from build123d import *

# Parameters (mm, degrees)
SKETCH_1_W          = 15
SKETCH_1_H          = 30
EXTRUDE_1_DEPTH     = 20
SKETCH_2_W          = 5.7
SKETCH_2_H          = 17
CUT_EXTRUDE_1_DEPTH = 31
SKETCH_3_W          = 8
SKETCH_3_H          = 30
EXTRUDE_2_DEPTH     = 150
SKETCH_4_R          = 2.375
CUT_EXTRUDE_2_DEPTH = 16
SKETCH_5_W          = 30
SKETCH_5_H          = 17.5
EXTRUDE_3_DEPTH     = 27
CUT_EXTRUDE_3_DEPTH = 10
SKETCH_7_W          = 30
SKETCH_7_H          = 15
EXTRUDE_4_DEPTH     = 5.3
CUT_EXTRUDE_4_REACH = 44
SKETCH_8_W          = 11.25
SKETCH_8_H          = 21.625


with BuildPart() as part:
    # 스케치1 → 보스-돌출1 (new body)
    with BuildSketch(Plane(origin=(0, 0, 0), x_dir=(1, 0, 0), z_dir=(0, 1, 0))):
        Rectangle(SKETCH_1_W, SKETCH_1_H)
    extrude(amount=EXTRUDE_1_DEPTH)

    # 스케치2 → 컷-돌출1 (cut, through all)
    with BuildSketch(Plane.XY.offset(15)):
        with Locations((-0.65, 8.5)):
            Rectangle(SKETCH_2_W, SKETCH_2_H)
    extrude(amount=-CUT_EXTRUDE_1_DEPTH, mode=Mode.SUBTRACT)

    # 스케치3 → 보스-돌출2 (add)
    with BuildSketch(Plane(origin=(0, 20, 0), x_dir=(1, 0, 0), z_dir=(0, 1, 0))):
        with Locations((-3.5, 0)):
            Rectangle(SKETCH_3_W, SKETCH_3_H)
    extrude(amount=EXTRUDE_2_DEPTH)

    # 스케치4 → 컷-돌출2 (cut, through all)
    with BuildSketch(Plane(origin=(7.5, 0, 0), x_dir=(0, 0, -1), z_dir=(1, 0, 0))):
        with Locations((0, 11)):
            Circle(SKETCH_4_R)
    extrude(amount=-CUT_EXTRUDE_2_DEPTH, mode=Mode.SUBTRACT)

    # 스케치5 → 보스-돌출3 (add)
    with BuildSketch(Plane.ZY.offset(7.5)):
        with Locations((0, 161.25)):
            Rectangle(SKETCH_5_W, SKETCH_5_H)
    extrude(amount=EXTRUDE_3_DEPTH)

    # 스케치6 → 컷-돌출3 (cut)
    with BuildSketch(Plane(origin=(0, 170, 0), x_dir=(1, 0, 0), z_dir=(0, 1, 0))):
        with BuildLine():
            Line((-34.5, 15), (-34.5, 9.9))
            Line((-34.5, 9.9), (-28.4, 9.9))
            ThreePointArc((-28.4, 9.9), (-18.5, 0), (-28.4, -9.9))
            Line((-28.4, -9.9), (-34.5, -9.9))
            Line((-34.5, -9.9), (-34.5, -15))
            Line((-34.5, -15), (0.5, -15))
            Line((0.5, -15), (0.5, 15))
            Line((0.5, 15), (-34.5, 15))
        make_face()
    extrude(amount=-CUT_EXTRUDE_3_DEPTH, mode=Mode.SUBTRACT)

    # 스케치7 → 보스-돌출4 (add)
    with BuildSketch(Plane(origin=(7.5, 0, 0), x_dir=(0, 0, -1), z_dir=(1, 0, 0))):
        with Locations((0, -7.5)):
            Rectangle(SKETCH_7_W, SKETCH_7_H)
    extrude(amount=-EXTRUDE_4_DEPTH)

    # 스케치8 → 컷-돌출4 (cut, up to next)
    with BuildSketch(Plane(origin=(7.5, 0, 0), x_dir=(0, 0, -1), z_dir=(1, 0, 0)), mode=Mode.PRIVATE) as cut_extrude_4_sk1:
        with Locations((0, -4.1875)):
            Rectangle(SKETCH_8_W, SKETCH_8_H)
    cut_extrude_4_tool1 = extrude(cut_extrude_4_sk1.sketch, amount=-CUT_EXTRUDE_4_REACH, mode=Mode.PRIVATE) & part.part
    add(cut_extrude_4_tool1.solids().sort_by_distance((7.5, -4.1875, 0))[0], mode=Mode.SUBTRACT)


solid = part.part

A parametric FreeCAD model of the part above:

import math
import FreeCAD as App
import Part
import Sketcher
Q = App.Units.Quantity


def add_polygon(sketch, points):
    """Adds a closed chain of lines whose ends are joined by coincident constraints."""
    first, n = sketch.GeometryCount, len(points)
    for a, b in zip(points, points[1:] + points[:1]):
        sketch.addGeometry(Part.LineSegment(App.Vector(*a, 0), App.Vector(*b, 0)), False)
    for i in range(n):
        sketch.addConstraint(Sketcher.Constraint("Coincident", first + i, 2, first + (i + 1) % n, 1))

doc = App.newDocument("Part")
body = doc.addObject("PartDesign::Body", "Body")

# Sketch on XZ plane
sketch1 = body.newObject("Sketcher::SketchObject", "Sketch")
sketch1.AttachmentSupport = (doc.getObject("XZ_Plane"), [""])
sketch1.MapMode = "FlatFace"
add_polygon(sketch1, [(-7.5, -15), (-7.5, 15), (7.5, 15), (7.5, -15)])  # lines 0-3
sketch1.addConstraint([
    Sketcher.Constraint("Vertical", 0),
    Sketcher.Constraint("Horizontal", 1),
    Sketcher.Constraint("Vertical", 2),
    Sketcher.Constraint("Horizontal", 3),
    Sketcher.Constraint("Symmetric", 0, 2, 2, 2, -1, 1),
    Sketcher.Constraint("DistanceX", 1, 1, 1, 2, Q("15 mm")),
    Sketcher.Constraint("DistanceY", 0, 1, 0, 2, Q("30 mm")),
])
pad1 = body.newObject("PartDesign::Pad", "Pad")
pad1.Profile = sketch1
pad1.Length = 20
pad1.Reversed = True

# Sketch on XY plane
sketch2 = body.newObject("Sketcher::SketchObject", "Sketch001")
sketch2.AttachmentSupport = (doc.getObject("XY_Plane"), [""])
sketch2.MapMode = "FlatFace"
sketch2.AttachmentOffset = App.Placement(App.Vector(0, 0, 15), App.Rotation())
add_polygon(sketch2, [(-3.5, 17), (-3.5, 0), (2.2, 0), (2.2, 17)])  # lines 0-3
sketch2.addConstraint([
    Sketcher.Constraint("Vertical", 0),
    Sketcher.Constraint("Horizontal", 1),
    Sketcher.Constraint("Vertical", 2),
    Sketcher.Constraint("Horizontal", 3),
    Sketcher.Constraint("PointOnObject", 0, 2, -1),
    Sketcher.Constraint("DistanceY", 0, 2, 0, 1, Q("17 mm")),
    Sketcher.Constraint("DistanceX", 1, 1, 1, 2, Q("5.7 mm")),
    Sketcher.Constraint("DistanceX", 0, 2, -1, 1, Q("3.5 mm")),
])
pocket1 = body.newObject("PartDesign::Pocket", "Pocket")
pocket1.Profile = sketch2
pocket1.Type = "ThroughAll"

# Sketch on XZ plane
sketch3 = body.newObject("Sketcher::SketchObject", "Sketch002")
sketch3.AttachmentSupport = (doc.getObject("XZ_Plane"), [""])
sketch3.MapMode = "FlatFace"
sketch3.AttachmentOffset = App.Placement(App.Vector(0, 0, -20), App.Rotation())
add_polygon(sketch3, [(-7.5, -15), (-7.5, 15), (0.5, 15), (0.5, -15)])  # lines 0-3
sketch3.addConstraint([
    Sketcher.Constraint("Vertical", 0),
    Sketcher.Constraint("Horizontal", 1),
    Sketcher.Constraint("Vertical", 2),
    Sketcher.Constraint("Horizontal", 3),
    Sketcher.Constraint("DistanceX", 1, 1, 1, 2, Q("8 mm")),
    Sketcher.Constraint("DistanceY", 0, 1, 0, 2, Q("30 mm")),
    Sketcher.Constraint("DistanceY", -1, 1, 0, 2, Q("15 mm")),
    Sketcher.Constraint("DistanceX", 0, 2, -1, 1, Q("7.5 mm")),
])
pad2 = body.newObject("PartDesign::Pad", "Pad001")
pad2.Profile = sketch3
pad2.Length = 150
pad2.Reversed = True

# Sketch on YZ plane
sketch4 = body.newObject("Sketcher::SketchObject", "Sketch003")
sketch4.AttachmentSupport = (doc.getObject("YZ_Plane"), [""])
sketch4.MapMode = "FlatFace"
sketch4.AttachmentOffset = App.Placement(App.Vector(0, 0, 7.5), App.Rotation())
sketch4.addGeometry(Part.Circle(App.Vector(11, 0, 0), App.Vector(0, 0, 1), 2.375), False)
sketch4.addConstraint([
    Sketcher.Constraint("PointOnObject", 0, 3, -1),
    Sketcher.Constraint("Diameter", 0, Q("4.75 mm")),
    Sketcher.Constraint("DistanceX", -1, 1, 0, 3, Q("11 mm")),
])
pocket2 = body.newObject("PartDesign::Pocket", "Pocket001")
pocket2.Profile = sketch4
pocket2.Type = "ThroughAll"

# Sketch on YZ plane
sketch5 = body.newObject("Sketcher::SketchObject", "Sketch004")
sketch5.AttachmentSupport = (doc.getObject("YZ_Plane"), [""])
sketch5.MapMode = "FlatFace"
sketch5.AttachmentOffset = App.Placement(App.Vector(0, 0, -7.5), App.Rotation())
add_polygon(sketch5, [(170, -15), (152.5, -15), (152.5, 15), (170, 15)])  # lines 0-3
sketch5.addConstraint([
    Sketcher.Constraint("Horizontal", 0),
    Sketcher.Constraint("Vertical", 1),
    Sketcher.Constraint("Horizontal", 2),
    Sketcher.Constraint("Vertical", 3),
    Sketcher.Constraint("DistanceY", 1, 1, 1, 2, Q("30 mm")),
    Sketcher.Constraint("DistanceX", 0, 2, 0, 1, Q("17.5 mm")),
    Sketcher.Constraint("DistanceY", 0, 2, -1, 1, Q("15 mm")),
    Sketcher.Constraint("DistanceX", -1, 1, 2, 2, Q("170 mm")),
])
pad3 = body.newObject("PartDesign::Pad", "Pad002")
pad3.Profile = sketch5
pad3.Length = 27
pad3.Reversed = True

# Sketch on XZ plane
sketch6 = body.newObject("Sketcher::SketchObject", "Sketch005")
sketch6.AttachmentSupport = (doc.getObject("XZ_Plane"), [""])
sketch6.MapMode = "FlatFace"
sketch6.AttachmentOffset = App.Placement(App.Vector(0, 0, -170), App.Rotation())
sketch6.addGeometry([
    Part.LineSegment(App.Vector(-34.5, -15, 0), App.Vector(-34.5, -9.9, 0)),  # 0
    Part.LineSegment(App.Vector(-34.5, -9.9, 0), App.Vector(-28.4, -9.9, 0)),  # 1
    Part.ArcOfCircle(Part.Circle(App.Vector(-28.4, 0, 0), App.Vector(0, 0, 1), 9.9), math.radians(-90), math.radians(90)),  # 2
    Part.LineSegment(App.Vector(-28.4, 9.9, 0), App.Vector(-34.5, 9.9, 0)),  # 3
    Part.LineSegment(App.Vector(-34.5, 9.9, 0), App.Vector(-34.5, 15, 0)),  # 4
    Part.LineSegment(App.Vector(-34.5, 15, 0), App.Vector(0.5, 15, 0)),  # 5
    Part.LineSegment(App.Vector(0.5, 15, 0), App.Vector(0.5, -15, 0)),  # 6
    Part.LineSegment(App.Vector(0.5, -15, 0), App.Vector(-34.5, -15, 0)),  # 7
], False)
sketch6.addConstraint([
    Sketcher.Constraint("Coincident", 0, 2, 1, 1),
    Sketcher.Constraint("Tangent", 1, 2, 2, 1),
    Sketcher.Constraint("Tangent", 2, 2, 3, 1),
    Sketcher.Constraint("Coincident", 3, 2, 4, 1),
    Sketcher.Constraint("Coincident", 4, 2, 5, 1),
    Sketcher.Constraint("Coincident", 5, 2, 6, 1),
    Sketcher.Constraint("Coincident", 6, 2, 7, 1),
    Sketcher.Constraint("Coincident", 7, 2, 0, 1),
    Sketcher.Constraint("Vertical", 0),
    Sketcher.Constraint("Horizontal", 1),
    Sketcher.Constraint("Horizontal", 3),
    Sketcher.Constraint("Vertical", 4),
    Sketcher.Constraint("Horizontal", 5),
    Sketcher.Constraint("Vertical", 6),
    Sketcher.Constraint("Horizontal", 7),
    Sketcher.Constraint("Symmetric", 0, 2, 3, 2, -1),
    Sketcher.Constraint("Equal", 0, 4),
    Sketcher.Constraint("Radius", 2, Q("9.9 mm")),
    Sketcher.Constraint("DistanceX", 5, 1, 5, 2, Q("35 mm")),
    Sketcher.Constraint("DistanceY", 6, 2, 6, 1, Q("30 mm")),
    Sketcher.Constraint("DistanceX", 1, 1, 1, 2, Q("6.1 mm")),
    Sketcher.Constraint("DistanceX", 2, 3, -1, 1, Q("28.4 mm")),
])
pocket3 = body.newObject("PartDesign::Pocket", "Pocket002")
pocket3.Profile = sketch6
pocket3.Length = 10
pocket3.Reversed = True

# Sketch on YZ plane
sketch7 = body.newObject("Sketcher::SketchObject", "Sketch006")
sketch7.AttachmentSupport = (doc.getObject("YZ_Plane"), [""])
sketch7.MapMode = "FlatFace"
sketch7.AttachmentOffset = App.Placement(App.Vector(0, 0, 7.5), App.Rotation())
add_polygon(sketch7, [(0, 15), (-15, 15), (-15, -15), (0, -15)])  # lines 0-3
sketch7.addConstraint([
    Sketcher.Constraint("Horizontal", 0),
    Sketcher.Constraint("Vertical", 1),
    Sketcher.Constraint("Horizontal", 2),
    Sketcher.Constraint("Vertical", 3),
    Sketcher.Constraint("Symmetric", 2, 2, 3, 2, -1, 1),
    Sketcher.Constraint("DistanceX", 0, 2, 0, 1, Q("15 mm")),
    Sketcher.Constraint("DistanceY", 1, 2, 1, 1, Q("30 mm")),
])
pad4 = body.newObject("PartDesign::Pad", "Pad003")
pad4.Profile = sketch7
pad4.Length = 5.3
pad4.Reversed = True

# Sketch on YZ plane
sketch8 = body.newObject("Sketcher::SketchObject", "Sketch007")
sketch8.AttachmentSupport = (doc.getObject("YZ_Plane"), [""])
sketch8.MapMode = "FlatFace"
sketch8.AttachmentOffset = App.Placement(App.Vector(0, 0, 7.5), App.Rotation())
add_polygon(sketch8, [(6.625, 5.625), (-15, 5.625), (-15, -5.625), (6.625, -5.625)])  # lines 0-3
sketch8.addConstraint([
    Sketcher.Constraint("Horizontal", 0),
    Sketcher.Constraint("Vertical", 1),
    Sketcher.Constraint("Horizontal", 2),
    Sketcher.Constraint("Vertical", 3),
    Sketcher.Constraint("DistanceX", 0, 2, -1, 1, Q("15 mm")),
    Sketcher.Constraint("DistanceY", 1, 2, 1, 1, Q("11.25 mm")),
    Sketcher.Constraint("DistanceX", 0, 2, 0, 1, Q("21.625 mm")),
    Sketcher.Constraint("DistanceY", -1, 1, 0, 2, Q("5.625 mm")),
])
pocket4 = body.newObject("PartDesign::Pocket", "Pocket003")
pocket4.Profile = sketch8
pocket4.Type = "UpToFirst"

doc.recompute()
